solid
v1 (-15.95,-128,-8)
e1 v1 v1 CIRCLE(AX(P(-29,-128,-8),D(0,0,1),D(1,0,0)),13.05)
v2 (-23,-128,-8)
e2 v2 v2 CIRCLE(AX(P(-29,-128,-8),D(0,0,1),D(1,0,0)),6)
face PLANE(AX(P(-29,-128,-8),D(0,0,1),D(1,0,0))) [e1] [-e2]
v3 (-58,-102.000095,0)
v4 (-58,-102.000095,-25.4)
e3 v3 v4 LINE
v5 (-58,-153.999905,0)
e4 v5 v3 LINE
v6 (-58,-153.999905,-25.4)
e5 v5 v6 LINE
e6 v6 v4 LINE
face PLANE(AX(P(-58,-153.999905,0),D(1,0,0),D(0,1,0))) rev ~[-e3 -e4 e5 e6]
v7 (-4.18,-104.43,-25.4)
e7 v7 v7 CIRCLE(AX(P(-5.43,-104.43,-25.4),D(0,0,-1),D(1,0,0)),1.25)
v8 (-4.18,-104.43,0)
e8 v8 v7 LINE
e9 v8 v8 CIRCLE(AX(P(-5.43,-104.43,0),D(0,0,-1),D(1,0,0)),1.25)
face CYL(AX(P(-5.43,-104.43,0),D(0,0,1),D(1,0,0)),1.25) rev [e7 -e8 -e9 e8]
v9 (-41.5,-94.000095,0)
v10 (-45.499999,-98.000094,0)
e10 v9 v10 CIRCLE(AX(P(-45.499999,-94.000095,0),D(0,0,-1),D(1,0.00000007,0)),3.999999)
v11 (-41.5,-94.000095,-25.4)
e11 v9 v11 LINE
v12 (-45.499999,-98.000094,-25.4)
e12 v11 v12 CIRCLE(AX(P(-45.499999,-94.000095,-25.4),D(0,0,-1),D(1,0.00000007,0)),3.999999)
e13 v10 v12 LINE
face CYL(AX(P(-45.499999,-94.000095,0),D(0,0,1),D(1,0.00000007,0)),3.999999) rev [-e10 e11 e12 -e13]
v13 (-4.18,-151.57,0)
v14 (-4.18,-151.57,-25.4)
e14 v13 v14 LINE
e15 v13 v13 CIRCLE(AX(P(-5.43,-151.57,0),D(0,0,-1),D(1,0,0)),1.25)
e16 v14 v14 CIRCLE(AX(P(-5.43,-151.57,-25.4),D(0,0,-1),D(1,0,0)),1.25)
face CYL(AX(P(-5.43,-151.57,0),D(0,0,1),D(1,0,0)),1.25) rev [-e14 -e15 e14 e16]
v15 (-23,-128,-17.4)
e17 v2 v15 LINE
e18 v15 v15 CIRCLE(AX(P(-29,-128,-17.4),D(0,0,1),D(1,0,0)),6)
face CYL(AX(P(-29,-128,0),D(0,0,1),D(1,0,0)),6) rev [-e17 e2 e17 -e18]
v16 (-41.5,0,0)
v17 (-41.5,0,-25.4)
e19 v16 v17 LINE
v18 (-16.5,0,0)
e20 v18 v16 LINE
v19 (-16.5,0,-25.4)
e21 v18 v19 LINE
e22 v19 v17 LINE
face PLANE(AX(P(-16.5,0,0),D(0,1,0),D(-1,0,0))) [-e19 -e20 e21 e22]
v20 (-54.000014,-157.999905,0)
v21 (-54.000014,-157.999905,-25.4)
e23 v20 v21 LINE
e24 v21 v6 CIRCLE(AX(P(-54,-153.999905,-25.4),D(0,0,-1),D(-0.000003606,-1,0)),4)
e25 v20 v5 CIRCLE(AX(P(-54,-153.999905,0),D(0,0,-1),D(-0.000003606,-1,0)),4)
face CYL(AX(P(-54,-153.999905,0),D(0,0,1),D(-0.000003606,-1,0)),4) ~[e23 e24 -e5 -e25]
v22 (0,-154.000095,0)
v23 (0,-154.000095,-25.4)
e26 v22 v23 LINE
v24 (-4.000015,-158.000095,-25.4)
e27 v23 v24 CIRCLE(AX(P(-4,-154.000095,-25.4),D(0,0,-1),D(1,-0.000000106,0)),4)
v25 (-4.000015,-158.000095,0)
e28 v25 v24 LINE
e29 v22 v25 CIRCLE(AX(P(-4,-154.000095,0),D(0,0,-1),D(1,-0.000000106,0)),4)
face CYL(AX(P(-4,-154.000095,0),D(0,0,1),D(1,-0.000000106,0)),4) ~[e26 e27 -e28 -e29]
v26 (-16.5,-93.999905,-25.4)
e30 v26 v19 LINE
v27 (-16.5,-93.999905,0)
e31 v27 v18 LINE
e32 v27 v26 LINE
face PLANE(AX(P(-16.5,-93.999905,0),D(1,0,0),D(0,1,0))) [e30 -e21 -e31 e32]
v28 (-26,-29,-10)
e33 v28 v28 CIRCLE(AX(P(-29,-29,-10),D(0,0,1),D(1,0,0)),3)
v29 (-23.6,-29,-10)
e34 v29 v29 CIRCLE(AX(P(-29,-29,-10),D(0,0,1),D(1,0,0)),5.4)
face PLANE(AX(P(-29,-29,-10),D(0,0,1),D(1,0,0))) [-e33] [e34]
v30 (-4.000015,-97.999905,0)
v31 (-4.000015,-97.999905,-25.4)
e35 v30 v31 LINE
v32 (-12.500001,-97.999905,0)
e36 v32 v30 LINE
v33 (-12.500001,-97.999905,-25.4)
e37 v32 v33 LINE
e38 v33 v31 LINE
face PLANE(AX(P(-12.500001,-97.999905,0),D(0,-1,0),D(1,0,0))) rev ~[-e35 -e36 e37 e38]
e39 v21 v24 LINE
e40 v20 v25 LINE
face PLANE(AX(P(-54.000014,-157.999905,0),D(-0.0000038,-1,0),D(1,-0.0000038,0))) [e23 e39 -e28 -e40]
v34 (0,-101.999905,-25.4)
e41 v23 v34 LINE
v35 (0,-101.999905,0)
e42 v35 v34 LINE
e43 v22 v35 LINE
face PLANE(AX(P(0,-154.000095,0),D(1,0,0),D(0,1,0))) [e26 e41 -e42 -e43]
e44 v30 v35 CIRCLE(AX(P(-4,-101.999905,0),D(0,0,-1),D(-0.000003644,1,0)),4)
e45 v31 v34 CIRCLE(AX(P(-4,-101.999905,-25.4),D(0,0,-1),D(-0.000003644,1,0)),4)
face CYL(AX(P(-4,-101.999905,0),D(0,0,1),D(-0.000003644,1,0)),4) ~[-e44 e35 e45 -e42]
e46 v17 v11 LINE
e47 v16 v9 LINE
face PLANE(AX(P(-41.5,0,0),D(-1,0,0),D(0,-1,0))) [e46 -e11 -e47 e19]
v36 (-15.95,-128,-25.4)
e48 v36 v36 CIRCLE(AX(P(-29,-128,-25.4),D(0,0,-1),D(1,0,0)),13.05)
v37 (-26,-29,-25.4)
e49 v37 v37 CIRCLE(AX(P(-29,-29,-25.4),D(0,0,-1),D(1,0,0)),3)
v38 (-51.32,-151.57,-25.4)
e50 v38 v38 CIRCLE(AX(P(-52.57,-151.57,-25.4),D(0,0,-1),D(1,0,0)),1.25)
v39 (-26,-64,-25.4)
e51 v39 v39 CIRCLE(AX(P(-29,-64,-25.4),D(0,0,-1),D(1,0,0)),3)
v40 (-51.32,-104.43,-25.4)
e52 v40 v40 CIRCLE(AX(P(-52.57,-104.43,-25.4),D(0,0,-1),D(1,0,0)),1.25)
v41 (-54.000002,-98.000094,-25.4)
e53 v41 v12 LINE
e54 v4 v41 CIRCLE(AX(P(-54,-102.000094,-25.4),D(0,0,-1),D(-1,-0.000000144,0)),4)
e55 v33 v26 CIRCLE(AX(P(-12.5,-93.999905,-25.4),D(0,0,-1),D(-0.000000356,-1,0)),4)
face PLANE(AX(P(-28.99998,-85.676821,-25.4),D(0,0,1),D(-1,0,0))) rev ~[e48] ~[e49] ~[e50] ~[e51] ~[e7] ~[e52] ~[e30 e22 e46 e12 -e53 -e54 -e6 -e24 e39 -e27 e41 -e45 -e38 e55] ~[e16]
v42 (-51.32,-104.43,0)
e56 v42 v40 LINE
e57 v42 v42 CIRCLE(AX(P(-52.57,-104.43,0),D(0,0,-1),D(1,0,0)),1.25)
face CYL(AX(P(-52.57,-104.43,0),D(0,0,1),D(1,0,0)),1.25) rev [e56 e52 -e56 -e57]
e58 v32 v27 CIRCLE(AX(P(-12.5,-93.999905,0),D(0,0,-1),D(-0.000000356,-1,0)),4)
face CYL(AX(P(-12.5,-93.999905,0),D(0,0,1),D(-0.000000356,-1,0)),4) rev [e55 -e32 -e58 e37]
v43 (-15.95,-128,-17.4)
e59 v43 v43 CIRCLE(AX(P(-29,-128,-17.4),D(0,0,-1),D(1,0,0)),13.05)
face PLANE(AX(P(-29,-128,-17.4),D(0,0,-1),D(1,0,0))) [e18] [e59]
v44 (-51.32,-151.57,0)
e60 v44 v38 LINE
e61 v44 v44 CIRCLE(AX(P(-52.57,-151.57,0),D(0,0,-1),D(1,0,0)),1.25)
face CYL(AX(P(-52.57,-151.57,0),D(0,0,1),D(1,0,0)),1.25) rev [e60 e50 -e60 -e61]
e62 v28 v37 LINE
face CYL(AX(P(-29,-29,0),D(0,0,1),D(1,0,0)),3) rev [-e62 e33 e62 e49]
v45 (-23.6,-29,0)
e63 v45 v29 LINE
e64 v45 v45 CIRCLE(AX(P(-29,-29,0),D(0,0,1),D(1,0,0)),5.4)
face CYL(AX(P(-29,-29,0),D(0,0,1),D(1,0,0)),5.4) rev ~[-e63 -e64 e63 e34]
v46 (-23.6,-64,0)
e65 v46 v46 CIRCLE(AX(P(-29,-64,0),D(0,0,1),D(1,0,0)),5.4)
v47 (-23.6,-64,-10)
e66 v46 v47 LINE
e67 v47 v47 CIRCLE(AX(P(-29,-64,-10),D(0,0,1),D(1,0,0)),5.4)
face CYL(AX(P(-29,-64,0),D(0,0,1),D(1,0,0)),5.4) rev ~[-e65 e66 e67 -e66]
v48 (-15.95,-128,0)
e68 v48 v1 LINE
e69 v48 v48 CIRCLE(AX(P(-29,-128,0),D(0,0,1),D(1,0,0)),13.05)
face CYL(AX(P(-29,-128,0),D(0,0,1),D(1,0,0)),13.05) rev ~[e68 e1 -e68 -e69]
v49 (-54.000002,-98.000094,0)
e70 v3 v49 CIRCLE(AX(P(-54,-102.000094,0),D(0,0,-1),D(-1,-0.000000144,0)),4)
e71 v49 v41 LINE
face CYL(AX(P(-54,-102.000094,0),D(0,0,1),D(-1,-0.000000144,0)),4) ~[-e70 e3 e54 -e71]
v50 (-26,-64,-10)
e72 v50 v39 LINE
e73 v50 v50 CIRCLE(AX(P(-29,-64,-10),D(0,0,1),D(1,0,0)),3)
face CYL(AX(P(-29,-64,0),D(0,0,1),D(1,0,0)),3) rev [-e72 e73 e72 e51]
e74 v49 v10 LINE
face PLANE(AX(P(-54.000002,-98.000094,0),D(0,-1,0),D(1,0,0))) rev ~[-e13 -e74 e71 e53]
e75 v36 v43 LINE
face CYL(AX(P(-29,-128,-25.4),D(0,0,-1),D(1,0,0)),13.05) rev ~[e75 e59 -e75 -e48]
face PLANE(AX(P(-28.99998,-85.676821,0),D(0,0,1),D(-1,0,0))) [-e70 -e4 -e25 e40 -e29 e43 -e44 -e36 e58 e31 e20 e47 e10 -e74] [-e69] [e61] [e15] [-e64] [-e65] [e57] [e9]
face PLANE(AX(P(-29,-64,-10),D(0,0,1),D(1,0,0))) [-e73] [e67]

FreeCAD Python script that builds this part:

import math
import FreeCAD as App
import Part
import Sketcher

doc = App.newDocument("Part")
params = doc.addObject("Spreadsheet::Sheet", "Params")
for row, (alias, value) in enumerate([
    ("sketch1_diameter", "6 mm"),
    ("sketch1_diameter2", "12 mm"),
    ("sketch1_radius", "4 mm"),
    ("sketch1_diameter3", "2.5 mm"),
    ("sketch1_width", "25 mm"),
    ("pad1_length", "25.4 mm"),
    ("sketch2_diameter", "26.1 mm"),
    ("pocket1_length", "8 mm"),
    ("sketch3_diameter", "26.1 mm"),
    ("pocket2_length", "8 mm"),
    ("sketch4_diameter", "10.8 mm"),
    ("pocket3_length", "10 mm"),
], start=1):
    params.set(f"A{row}", alias)
    params.set(f"B{row}", "=" + value)
    params.setAlias(f"B{row}", alias)

body = doc.addObject("PartDesign::Body", "Body")

sketch1 = doc.addObject("Sketcher::SketchObject", "Sketch")
body.addObject(sketch1)
sketch1.AttachmentSupport = (doc.XY_Plane, [""])
sketch1.MapMode = "FlatFace"
sketch1.addGeometry([
    Part.LineSegment(App.Vector(-41.5, 0, 0), App.Vector(-16.5, 0, 0)),
    Part.LineSegment(App.Vector(-16.5, 0, 0), App.Vector(-16.5, -94, 0)),
    Part.ArcOfCircle(Part.Circle(App.Vector(-12.5, -94, 0), App.Vector(0, 0, 1), 4), math.radians(-180), math.radians(-90)),
    Part.LineSegment(App.Vector(-12.5, -98, 0), App.Vector(-4, -98, 0)),
    Part.ArcOfCircle(Part.Circle(App.Vector(-4, -102, 0), App.Vector(0, 0, 1), 4), math.radians(0), math.radians(90)),
    Part.LineSegment(App.Vector(0, -102, 0), App.Vector(0, -154, 0)),
    Part.ArcOfCircle(Part.Circle(App.Vector(-4, -154, 0), App.Vector(0, 0, 1), 4), math.radians(-90), math.radians(0)),
    Part.LineSegment(App.Vector(-4, -158, 0), App.Vector(-54, -158, 0)),
    Part.ArcOfCircle(Part.Circle(App.Vector(-54, -154, 0), App.Vector(0, 0, 1), 4), math.radians(-180), math.radians(-90)),
    Part.LineSegment(App.Vector(-58, -154, 0), App.Vector(-58, -102, 0)),
    Part.ArcOfCircle(Part.Circle(App.Vector(-54, -102, 0), App.Vector(0, 0, 1), 4), math.radians(90), math.radians(180)),
    Part.LineSegment(App.Vector(-54, -98, 0), App.Vector(-45.5, -98, 0)),
    Part.ArcOfCircle(Part.Circle(App.Vector(-45.5, -94, 0), App.Vector(0, 0, 1), 4), math.radians(-90), math.radians(0)),
    Part.LineSegment(App.Vector(-41.5, -94, 0), App.Vector(-41.5, 0, 0)),
    Part.Circle(App.Vector(-29, -29, 0), App.Vector(0, 0, 1), 3),
    Part.Circle(App.Vector(-29, -64, 0), App.Vector(0, 0, 1), 3),
    Part.Circle(App.Vector(-5.4, -104.4, 0), App.Vector(0, 0, 1), 1.2),
    Part.Circle(App.Vector(-5.4, -151.6, 0), App.Vector(0, 0, 1), 1.2),
    Part.Circle(App.Vector(-52.6, -104.4, 0), App.Vector(0, 0, 1), 1.2),
    Part.Circle(App.Vector(-29, -128, 0), App.Vector(0, 0, 1), 6),
    Part.Circle(App.Vector(-52.6, -151.6, 0), App.Vector(0, 0, 1), 1.2),
], False)
sketch1.addConstraint([
    Sketcher.Constraint("Coincident", 0, 2, 1, 1),
    Sketcher.Constraint("Tangent", 1, 2, 2, 1),
    Sketcher.Constraint("Tangent", 2, 2, 3, 1),
    Sketcher.Constraint("Coincident", 3, 2, 4, 2),
    Sketcher.Constraint("Tangent", 4, 1, 5, 1),
    Sketcher.Constraint("Tangent", 5, 2, 6, 2),
    Sketcher.Constraint("Tangent", 6, 1, 7, 1),
    Sketcher.Constraint("Tangent", 7, 2, 8, 2),
    Sketcher.Constraint("Tangent", 8, 1, 9, 1),
    Sketcher.Constraint("Tangent", 9, 2, 10, 2),
    Sketcher.Constraint("Tangent", 10, 1, 11, 1),
    Sketcher.Constraint("Tangent", 11, 2, 12, 1),
    Sketcher.Constraint("Tangent", 12, 2, 13, 1),
    Sketcher.Constraint("Coincident", 13, 2, 0, 1),
    Sketcher.Constraint("Horizontal", 0),
    Sketcher.Constraint("Vertical", 1),
    Sketcher.Constraint("Horizontal", 3),
    Sketcher.Constraint("Vertical", 5),
    Sketcher.Constraint("Vertical", 9),
    Sketcher.Constraint("Horizontal", 11),
    Sketcher.Constraint("Vertical", 13),
    Sketcher.Constraint("Equal", 2, 4),
    Sketcher.Constraint("Equal", 4, 6),
    Sketcher.Constraint("Equal", 6, 8),
    Sketcher.Constraint("Equal", 8, 10),
    Sketcher.Constraint("Equal", 10, 12),
    Sketcher.Constraint("Equal", 14, 15),
    Sketcher.Constraint("Equal", 16, 17),
    Sketcher.Constraint("Equal", 17, 18),
    Sketcher.Constraint("Equal", 18, 20),
    Sketcher.Constraint("PointOnObject", 0, 2, -1),
    Sketcher.Constraint("PointOnObject", 4, 1, -2),
    Sketcher.Constraint("Horizontal", 16, 3, 18, 3),
    Sketcher.Constraint("Horizontal", 17, 3, 20, 3),
    Sketcher.Constraint("Vertical", 14, 3, 15, 3),
    Sketcher.Constraint("Vertical", 16, 3, 17, 3),
    Sketcher.Constraint("Vertical", 15, 3, 19, 3),
    Sketcher.Constraint("Vertical", 18, 3, 20, 3),
    Sketcher.Constraint("Vertical", 3, 2, 6, 1),
    Sketcher.Constraint("Diameter", 14, 6.0),
    Sketcher.Constraint("Diameter", 19, 12.0),
    Sketcher.Constraint("Radius", 2, 4.0),
    Sketcher.Constraint("Diameter", 16, 2.5),
    Sketcher.Constraint("DistanceX", 0, 1, 0, 2, 25.0),
    Sketcher.Constraint("Distance", 7, 49.999999),
    Sketcher.Constraint("DistanceX", 14, 3, -1, 1, 29.0),
    Sketcher.Constraint("DistanceY", 14, 3, -1, 1, 29.0),
    Sketcher.Constraint("DistanceY", 15, 3, -1, 1, 64.0),
    Sketcher.Constraint("DistanceY", 19, 3, -1, 1, 128.0),
    Sketcher.Constraint("DistanceY", 8, 3, 4, 3, 51.999999),
    Sketcher.Constraint("DistanceY", 6, 3, 10, 3, 52.0),
    Sketcher.Constraint("DistanceX", 2, 3, -1, 1, 12.5),
    Sketcher.Constraint("DistanceX", 16, 3, -1, 1, 5.43),
    Sketcher.Constraint("DistanceY", 16, 3, -1, 1, 104.43),
    Sketcher.Constraint("DistanceY", 17, 3, -1, 1, 151.57),
    Sketcher.Constraint("DistanceX", 18, 3, -1, 1, 52.57),
    Sketcher.Constraint("DistanceY", 5, 2, 5, 1, 52.00019),
    Sketcher.Constraint("DistanceY", 1, 2, 1, 1, 93.999905),
])
sketch1.setExpression("Constraints[39]", "Params.sketch1_diameter")
sketch1.setExpression("Constraints[40]", "Params.sketch1_diameter2")
sketch1.setExpression("Constraints[41]", "Params.sketch1_radius")
sketch1.setExpression("Constraints[42]", "Params.sketch1_diameter3")
sketch1.setExpression("Constraints[43]", "Params.sketch1_width")
pad1 = doc.addObject("PartDesign::Pad", "Pad")
body.addObject(pad1)
pad1.Profile = sketch1
pad1.setExpression("Length", "Params.pad1_length")
pad1.Reversed = True

sketch2 = doc.addObject("Sketcher::SketchObject", "Sketch001")
body.addObject(sketch2)
sketch2.AttachmentSupport = (doc.XY_Plane, [""])
sketch2.MapMode = "FlatFace"
sketch2.addGeometry(Part.Circle(App.Vector(-29, -128, 0), App.Vector(0, 0, 1), 13), False)
sketch2.addConstraint([
    Sketcher.Constraint("Diameter", 0, 26.1),
    Sketcher.Constraint("DistanceX", 0, 3, -1, 1, 29.0),
    Sketcher.Constraint("DistanceY", 0, 3, -1, 1, 128.0),
])
sketch2.setExpression("Constraints[0]", "Params.sketch2_diameter")
pocket1 = doc.addObject("PartDesign::Pocket", "Pocket")
body.addObject(pocket1)
pocket1.Profile = sketch2
pocket1.setExpression("Length", "Params.pocket1_length")

sketch3 = doc.addObject("Sketcher::SketchObject", "Sketch002")
body.addObject(sketch3)
sketch3.AttachmentSupport = (doc.XY_Plane, [""])
sketch3.MapMode = "FlatFace"
sketch3.AttachmentOffset = App.Placement(App.Vector(0, 0, -25.4), App.Rotation())
sketch3.addGeometry(Part.Circle(App.Vector(-29, -128, 0), App.Vector(0, 0, 1), 13), False)
sketch3.addConstraint([
    Sketcher.Constraint("Diameter", 0, 26.1),
    Sketcher.Constraint("DistanceX", 0, 3, -1, 1, 29.0),
    Sketcher.Constraint("DistanceY", 0, 3, -1, 1, 128.0),
])
sketch3.setExpression("Constraints[0]", "Params.sketch3_diameter")
pocket2 = doc.addObject("PartDesign::Pocket", "Pocket001")
body.addObject(pocket2)
pocket2.Profile = sketch3
pocket2.setExpression("Length", "Params.pocket2_length")
pocket2.Reversed = True

sketch4 = doc.addObject("Sketcher::SketchObject", "Sketch003")
body.addObject(sketch4)
sketch4.AttachmentSupport = (doc.XY_Plane, [""])
sketch4.MapMode = "FlatFace"
sketch4.addGeometry([
    Part.Circle(App.Vector(-29, -29, 0), App.Vector(0, 0, 1), 5),
    Part.Circle(App.Vector(-29, -64, 0), App.Vector(0, 0, 1), 5),
], False)
sketch4.addConstraint([
    Sketcher.Constraint("Equal", 0, 1),
    Sketcher.Constraint("Vertical", 0, 3, 1, 3),
    Sketcher.Constraint("Diameter", 0, 10.8),
    Sketcher.Constraint("DistanceX", 0, 3, -1, 1, 29.0),
    Sketcher.Constraint("DistanceY", 0, 3, -1, 1, 29.0),
    Sketcher.Constraint("DistanceY", 1, 3, -1, 1, 64.0),
])
sketch4.setExpression("Constraints[2]", "Params.sketch4_diameter")
pocket3 = doc.addObject("PartDesign::Pocket", "Pocket002")
body.addObject(pocket3)
pocket3.Profile = sketch4
pocket3.setExpression("Length", "Params.pocket3_length")

doc.recompute()
